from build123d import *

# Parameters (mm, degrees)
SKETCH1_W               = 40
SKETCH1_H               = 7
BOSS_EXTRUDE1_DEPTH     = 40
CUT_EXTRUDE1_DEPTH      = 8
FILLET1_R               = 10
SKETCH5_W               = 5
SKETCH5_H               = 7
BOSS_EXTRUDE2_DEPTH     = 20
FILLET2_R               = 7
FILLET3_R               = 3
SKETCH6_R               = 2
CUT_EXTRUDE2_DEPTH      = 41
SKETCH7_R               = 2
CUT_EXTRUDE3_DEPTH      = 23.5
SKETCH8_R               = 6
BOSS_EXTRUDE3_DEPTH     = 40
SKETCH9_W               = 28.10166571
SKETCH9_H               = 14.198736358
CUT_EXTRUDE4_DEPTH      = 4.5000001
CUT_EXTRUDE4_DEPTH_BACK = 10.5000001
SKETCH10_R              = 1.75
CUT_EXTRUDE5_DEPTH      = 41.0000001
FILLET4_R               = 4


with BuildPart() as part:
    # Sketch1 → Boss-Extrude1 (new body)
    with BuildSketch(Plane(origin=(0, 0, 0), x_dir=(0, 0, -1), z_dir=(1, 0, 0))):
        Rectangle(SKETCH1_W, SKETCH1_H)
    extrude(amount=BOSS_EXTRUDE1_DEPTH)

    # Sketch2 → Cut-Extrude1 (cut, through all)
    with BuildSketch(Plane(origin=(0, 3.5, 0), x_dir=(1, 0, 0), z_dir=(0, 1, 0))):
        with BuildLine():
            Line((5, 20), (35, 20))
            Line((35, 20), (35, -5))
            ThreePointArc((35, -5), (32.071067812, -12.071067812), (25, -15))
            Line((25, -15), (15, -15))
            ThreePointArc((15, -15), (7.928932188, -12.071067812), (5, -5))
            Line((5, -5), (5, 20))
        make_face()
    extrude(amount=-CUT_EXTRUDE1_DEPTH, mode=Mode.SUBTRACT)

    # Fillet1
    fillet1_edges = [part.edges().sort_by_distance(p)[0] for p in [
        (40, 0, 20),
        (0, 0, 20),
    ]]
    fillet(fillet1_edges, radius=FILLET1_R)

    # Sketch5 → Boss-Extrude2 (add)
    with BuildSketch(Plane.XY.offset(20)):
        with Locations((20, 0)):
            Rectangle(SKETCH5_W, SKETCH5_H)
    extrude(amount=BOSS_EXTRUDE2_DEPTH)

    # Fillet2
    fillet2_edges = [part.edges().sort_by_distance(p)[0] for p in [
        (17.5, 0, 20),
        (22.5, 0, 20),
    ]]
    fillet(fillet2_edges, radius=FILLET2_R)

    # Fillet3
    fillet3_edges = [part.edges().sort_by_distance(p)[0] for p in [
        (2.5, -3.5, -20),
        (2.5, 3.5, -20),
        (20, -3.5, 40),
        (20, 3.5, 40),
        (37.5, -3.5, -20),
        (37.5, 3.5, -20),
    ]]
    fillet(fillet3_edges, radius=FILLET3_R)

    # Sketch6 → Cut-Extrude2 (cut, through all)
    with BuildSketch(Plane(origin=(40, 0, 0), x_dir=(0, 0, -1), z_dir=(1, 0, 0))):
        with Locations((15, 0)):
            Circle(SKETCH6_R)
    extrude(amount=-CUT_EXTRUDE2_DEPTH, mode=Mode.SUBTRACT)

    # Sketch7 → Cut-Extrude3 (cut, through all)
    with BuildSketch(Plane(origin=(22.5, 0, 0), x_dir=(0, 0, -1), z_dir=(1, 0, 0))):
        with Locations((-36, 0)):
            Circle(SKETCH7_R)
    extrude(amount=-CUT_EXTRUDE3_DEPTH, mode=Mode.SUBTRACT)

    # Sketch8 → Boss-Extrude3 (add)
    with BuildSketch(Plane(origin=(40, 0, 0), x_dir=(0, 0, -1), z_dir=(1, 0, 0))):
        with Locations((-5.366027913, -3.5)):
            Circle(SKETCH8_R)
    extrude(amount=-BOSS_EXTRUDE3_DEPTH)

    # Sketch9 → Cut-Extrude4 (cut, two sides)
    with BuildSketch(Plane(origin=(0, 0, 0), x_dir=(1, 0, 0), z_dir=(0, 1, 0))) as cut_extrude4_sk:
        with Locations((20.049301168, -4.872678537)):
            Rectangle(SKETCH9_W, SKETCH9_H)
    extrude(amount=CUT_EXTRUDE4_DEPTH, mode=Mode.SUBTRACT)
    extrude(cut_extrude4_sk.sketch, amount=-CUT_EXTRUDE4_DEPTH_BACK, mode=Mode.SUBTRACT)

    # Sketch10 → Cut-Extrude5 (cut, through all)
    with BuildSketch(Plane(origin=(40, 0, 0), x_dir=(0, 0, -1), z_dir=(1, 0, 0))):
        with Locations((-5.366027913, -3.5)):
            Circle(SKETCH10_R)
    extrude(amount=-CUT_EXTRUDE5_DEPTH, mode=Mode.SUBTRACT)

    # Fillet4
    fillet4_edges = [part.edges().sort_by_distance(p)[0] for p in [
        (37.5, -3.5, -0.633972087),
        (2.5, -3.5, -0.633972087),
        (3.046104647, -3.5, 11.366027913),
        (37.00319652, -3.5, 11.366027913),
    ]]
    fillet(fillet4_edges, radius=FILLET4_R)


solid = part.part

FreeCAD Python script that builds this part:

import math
import FreeCAD as App
import Part
import Sketcher

V = App.Vector


def edges_at(feature, points):
    """Names of the edges that pass closest to the given points."""
    edges = feature.Shape.Edges
    near = lambda p: min(range(len(edges)), key=lambda i: edges[i].distToShape(Part.Vertex(*p))[0])
    return sorted({f"Edge{near(p) + 1}" for p in points})


def add_polygon(sketch, points):
    """Adds a closed chain of lines whose ends are joined by coincident constraints."""
    first, n = sketch.GeometryCount, len(points)
    for a, b in zip(points, points[1:] + points[:1]):
        sketch.addGeometry(Part.LineSegment(App.Vector(*a, 0), App.Vector(*b, 0)), False)
    for i in range(n):
        sketch.addConstraint(Sketcher.Constraint("Coincident", first + i, 2, first + (i + 1) % n, 1))

doc = App.newDocument("Part")
body = doc.addObject("PartDesign::Body", "Body")

# Sketch on YZ plane
sketch1 = body.newObject("Sketcher::SketchObject", "Sketch")
sketch1.AttachmentSupport = (doc.getObject("YZ_Plane"), [""])
sketch1.MapMode = "FlatFace"
add_polygon(sketch1, [(3.5, 20), (-3.5, 20), (-3.5, -20), (3.5, -20)])  # lines 0-3
sketch1.addConstraint(Sketcher.Constraint("Horizontal", 0))
sketch1.addConstraint(Sketcher.Constraint("Vertical", 1))
sketch1.addConstraint(Sketcher.Constraint("Horizontal", 2))
sketch1.addConstraint(Sketcher.Constraint("Vertical", 3))
sketch1.addConstraint(Sketcher.Constraint("Symmetric", 0, 2, 2, 2, -1, 1))
sketch1.addConstraint(Sketcher.Constraint("DistanceX", 0, 2, 0, 1, 7.0))
sketch1.addConstraint(Sketcher.Constraint("DistanceY", 1, 2, 1, 1, 40.0))
pad1 = body.newObject("PartDesign::Pad", "Pad")
pad1.Profile = sketch1
pad1.Length = 40

# Sketch on XZ plane
sketch2 = body.newObject("Sketcher::SketchObject", "Sketch001")
sketch2.AttachmentSupport = (doc.getObject("XZ_Plane"), [""])
sketch2.MapMode = "FlatFace"
sketch2.AttachmentOffset = App.Placement(V(0, 0, -3.5), App.Rotation())
sketch2.addGeometry(Part.LineSegment(V(35, -20, 0), V(5, -20, 0)), False)
sketch2.addGeometry(Part.LineSegment(V(5, -20, 0), V(5, 5, 0)), False)
sketch2.addGeometry(Part.ArcOfCircle(Part.Circle(V(15, 5, 0), V(0, 0, 1), 10), math.radians(90), math.radians(180)), False)
sketch2.addGeometry(Part.LineSegment(V(15, 15, 0), V(25, 15, 0)), False)
sketch2.addGeometry(Part.ArcOfCircle(Part.Circle(V(25, 5, 0), V(0, 0, 1), 10), math.radians(0), math.radians(90)), False)
sketch2.addGeometry(Part.LineSegment(V(35, 5, 0), V(35, -20, 0)), False)
sketch2.addConstraint(Sketcher.Constraint("Coincident", 0, 2, 1, 1))
sketch2.addConstraint(Sketcher.Constraint("Tangent", 1, 2, 2, 2))
sketch2.addConstraint(Sketcher.Constraint("Tangent", 2, 1, 3, 1))
sketch2.addConstraint(Sketcher.Constraint("Tangent", 3, 2, 4, 2))
sketch2.addConstraint(Sketcher.Constraint("Tangent", 4, 1, 5, 1))
sketch2.addConstraint(Sketcher.Constraint("Coincident", 5, 2, 0, 1))
sketch2.addConstraint(Sketcher.Constraint("Horizontal", 0))
sketch2.addConstraint(Sketcher.Constraint("Vertical", 1))
sketch2.addConstraint(Sketcher.Constraint("Horizontal", 3))
sketch2.addConstraint(Sketcher.Constraint("Vertical", 5))
sketch2.addConstraint(Sketcher.Constraint("Equal", 2, 4))
sketch2.addConstraint(Sketcher.Constraint("Radius", 2, 10.0))
sketch2.addConstraint(Sketcher.Constraint("DistanceX", 0, 2, 0, 1, 30.0))
sketch2.addConstraint(Sketcher.Constraint("DistanceY", 1, 1, 1, 2, 25.0))
sketch2.addConstraint(Sketcher.Constraint("DistanceX", -1, 1, 2, 3, 15.0))
sketch2.addConstraint(Sketcher.Constraint("DistanceY", -1, 1, 2, 3, 5.0))
pocket1 = body.newObject("PartDesign::Pocket", "Pocket")
pocket1.Profile = sketch2
pocket1.Type = "ThroughAll"
pocket1.Reversed = True
doc.recompute()

fillet = body.newObject("PartDesign::Fillet", "Fillet")
fillet.Base = (pocket1, edges_at(pocket1, [(40, 0, 20), (0, 0, 20)]))
fillet.Radius = 10

# Sketch on XY plane
sketch3 = body.newObject("Sketcher::SketchObject", "Sketch002")
sketch3.AttachmentSupport = (doc.getObject("XY_Plane"), [""])
sketch3.MapMode = "FlatFace"
sketch3.AttachmentOffset = App.Placement(V(0, 0, 20), App.Rotation())
add_polygon(sketch3, [(17.5, 3.5), (17.5, -3.5), (22.5, -3.5), (22.5, 3.5)])  # lines 0-3
sketch3.addConstraint(Sketcher.Constraint("Vertical", 0))
sketch3.addConstraint(Sketcher.Constraint("Horizontal", 1))
sketch3.addConstraint(Sketcher.Constraint("Vertical", 2))
sketch3.addConstraint(Sketcher.Constraint("Horizontal", 3))
sketch3.addConstraint(Sketcher.Constraint("DistanceX", 1, 1, 1, 2, 5.0))
sketch3.addConstraint(Sketcher.Constraint("DistanceY", 0, 2, 0, 1, 7.0))
sketch3.addConstraint(Sketcher.Constraint("DistanceX", -1, 1, 0, 2, 17.5))
sketch3.addConstraint(Sketcher.Constraint("DistanceY", 0, 2, -1, 1, 3.5))
pad2 = body.newObject("PartDesign::Pad", "Pad001")
pad2.Profile = sketch3
pad2.Length = 20
doc.recompute()

fillet2 = body.newObject("PartDesign::Fillet", "Fillet001")
fillet2.Base = (pad2, edges_at(pad2, [(17.5, 0, 20), (22.5, 0, 20)]))
fillet2.Radius = 7
doc.recompute()

fillet3 = body.newObject("PartDesign::Fillet", "Fillet002")
fillet3.Base = (fillet2, edges_at(fillet2, [
    (2.5, -3.5, -20),
    (2.5, 3.5, -20),
    (20, -3.5, 40),
    (20, 3.5, 40),
    (37.5, -3.5, -20),
    (37.5, 3.5, -20),
]))
fillet3.Radius = 3

# Sketch on YZ plane
sketch4 = body.newObject("Sketcher::SketchObject", "Sketch003")
sketch4.AttachmentSupport = (doc.getObject("YZ_Plane"), [""])
sketch4.MapMode = "FlatFace"
sketch4.AttachmentOffset = App.Placement(V(0, 0, 40), App.Rotation())
sketch4.addGeometry(Part.Circle(V(0, -15, 0), V(0, 0, 1), 2), False)
sketch4.addConstraint(Sketcher.Constraint("PointOnObject", 0, 3, -2))
sketch4.addConstraint(Sketcher.Constraint("Diameter", 0, 4.0))
sketch4.addConstraint(Sketcher.Constraint("DistanceY", 0, 3, -1, 1, 15.0))
pocket2 = body.newObject("PartDesign::Pocket", "Pocket001")
pocket2.Profile = sketch4
pocket2.Type = "ThroughAll"

# Sketch on YZ plane
sketch5 = body.newObject("Sketcher::SketchObject", "Sketch004")
sketch5.AttachmentSupport = (doc.getObject("YZ_Plane"), [""])
sketch5.MapMode = "FlatFace"
sketch5.AttachmentOffset = App.Placement(V(0, 0, 22.5), App.Rotation())
sketch5.addGeometry(Part.Circle(V(0, 36, 0), V(0, 0, 1), 2), False)
sketch5.addConstraint(Sketcher.Constraint("PointOnObject", 0, 3, -2))
sketch5.addConstraint(Sketcher.Constraint("Diameter", 0, 4.0))
sketch5.addConstraint(Sketcher.Constraint("DistanceY", -1, 1, 0, 3, 36.0))
pocket3 = body.newObject("PartDesign::Pocket", "Pocket002")
pocket3.Profile = sketch5
pocket3.Type = "ThroughAll"

# Sketch on YZ plane
sketch6 = body.newObject("Sketcher::SketchObject", "Sketch005")
sketch6.AttachmentSupport = (doc.getObject("YZ_Plane"), [""])
sketch6.MapMode = "FlatFace"
sketch6.AttachmentOffset = App.Placement(V(0, 0, 40), App.Rotation())
sketch6.addGeometry(Part.Circle(V(-3.5, 5.366028, 0), V(0, 0, 1), 6), False)
sketch6.addConstraint(Sketcher.Constraint("Diameter", 0, 12.0))
sketch6.addConstraint(Sketcher.Constraint("DistanceX", 0, 3, -1, 1, 3.5))
sketch6.addConstraint(Sketcher.Constraint("DistanceY", -1, 1, 0, 3, 5.366028))
pad3 = body.newObject("PartDesign::Pad", "Pad002")
pad3.Profile = sketch6
pad3.Length = 40
pad3.Reversed = True

# Sketch on XZ plane
sketch7 = body.newObject("Sketcher::SketchObject", "Sketch006")
sketch7.AttachmentSupport = (doc.getObject("XZ_Plane"), [""])
sketch7.MapMode = "FlatFace"
add_polygon(sketch7, [(5.998468, -2.22669), (5.998468, 11.972047), (34.100134, 11.972047), (34.100134, -2.22669)])  # lines 0-3
sketch7.addConstraint(Sketcher.Constraint("Vertical", 0))
sketch7.addConstraint(Sketcher.Constraint("Horizontal", 1))
sketch7.addConstraint(Sketcher.Constraint("Vertical", 2))
sketch7.addConstraint(Sketcher.Constraint("Horizontal", 3))
sketch7.addConstraint(Sketcher.Constraint("DistanceX", 1, 1, 1, 2, 28.101666))
sketch7.addConstraint(Sketcher.Constraint("DistanceY", 0, 1, 0, 2, 14.198736))
sketch7.addConstraint(Sketcher.Constraint("DistanceX", -1, 1, 0, 2, 5.998468))
sketch7.addConstraint(Sketcher.Constraint("DistanceY", 2, 2, -1, 1, 2.22669))
pocket4 = body.newObject("PartDesign::Pocket", "Pocket003")
pocket4.Profile = sketch7
pocket4.Type = "ThroughAll"
pocket4.Midplane = True

# Sketch on YZ plane
sketch8 = body.newObject("Sketcher::SketchObject", "Sketch007")
sketch8.AttachmentSupport = (doc.getObject("YZ_Plane"), [""])
sketch8.MapMode = "FlatFace"
sketch8.AttachmentOffset = App.Placement(V(0, 0, 40), App.Rotation())
sketch8.addGeometry(Part.Circle(V(-3.5, 5.366028, 0), V(0, 0, 1), 1.75), False)
sketch8.addConstraint(Sketcher.Constraint("Diameter", 0, 3.5))
sketch8.addConstraint(Sketcher.Constraint("DistanceX", 0, 3, -1, 1, 3.5))
sketch8.addConstraint(Sketcher.Constraint("DistanceY", -1, 1, 0, 3, 5.366028))
pocket5 = body.newObject("PartDesign::Pocket", "Pocket004")
pocket5.Profile = sketch8
pocket5.Type = "ThroughAll"
doc.recompute()

fillet4 = body.newObject("PartDesign::Fillet", "Fillet003")
fillet4.Base = (pocket5, edges_at(pocket5, [
    (37.5, -3.5, -0.634),
    (2.5, -3.5, -0.634),
    (3.046, -3.5, 11.366),
    (37.003, -3.5, 11.366),
]))
fillet4.Radius = 4

doc.recompute()
